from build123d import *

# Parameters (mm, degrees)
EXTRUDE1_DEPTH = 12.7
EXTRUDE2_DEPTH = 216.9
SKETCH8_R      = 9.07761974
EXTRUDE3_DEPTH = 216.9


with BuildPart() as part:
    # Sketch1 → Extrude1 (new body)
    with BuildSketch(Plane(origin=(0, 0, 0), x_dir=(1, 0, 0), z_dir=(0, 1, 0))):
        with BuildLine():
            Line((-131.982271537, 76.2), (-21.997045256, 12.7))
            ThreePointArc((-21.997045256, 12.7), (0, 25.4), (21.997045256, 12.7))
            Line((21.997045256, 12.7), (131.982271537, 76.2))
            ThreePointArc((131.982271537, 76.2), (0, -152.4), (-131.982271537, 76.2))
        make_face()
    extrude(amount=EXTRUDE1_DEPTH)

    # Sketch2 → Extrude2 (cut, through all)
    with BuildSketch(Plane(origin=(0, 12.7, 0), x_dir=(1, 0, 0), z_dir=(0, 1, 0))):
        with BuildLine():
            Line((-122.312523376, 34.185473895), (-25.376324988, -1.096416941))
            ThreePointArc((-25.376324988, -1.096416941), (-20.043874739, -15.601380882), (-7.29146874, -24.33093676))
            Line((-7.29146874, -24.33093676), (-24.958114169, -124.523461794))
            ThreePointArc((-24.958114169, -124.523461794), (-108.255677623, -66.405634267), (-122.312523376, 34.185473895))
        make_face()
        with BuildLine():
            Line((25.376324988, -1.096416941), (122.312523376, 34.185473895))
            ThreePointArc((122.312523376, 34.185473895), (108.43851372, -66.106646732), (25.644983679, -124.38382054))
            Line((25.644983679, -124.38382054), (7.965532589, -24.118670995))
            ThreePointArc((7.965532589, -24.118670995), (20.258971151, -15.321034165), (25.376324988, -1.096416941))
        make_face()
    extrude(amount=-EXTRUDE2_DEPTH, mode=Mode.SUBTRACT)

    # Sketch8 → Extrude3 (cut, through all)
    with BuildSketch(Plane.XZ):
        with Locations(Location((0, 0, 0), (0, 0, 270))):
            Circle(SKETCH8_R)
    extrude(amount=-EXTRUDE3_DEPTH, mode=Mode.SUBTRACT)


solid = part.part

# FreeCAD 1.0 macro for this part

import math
import FreeCAD as App
import Part
import Sketcher
Q = App.Units.Quantity

doc = App.newDocument("Part")
body = doc.addObject("PartDesign::Body", "Body")

sketch1 = body.newObject("Sketcher::SketchObject", "Sketch")
sketch1.AttachmentSupport = (doc.getObject("XZ_Plane"), [""])
sketch1.MapMode = "FlatFace"
sketch1.addGeometry(Part.LineSegment(App.Vector(-22, -13, 0), App.Vector(-132, -76, 0)), False)
sketch1.addGeometry(Part.ArcOfCircle(Part.Circle(App.Vector(0, 0, 0), App.Vector(0, 0, 1), 152), math.radians(-30), math.radians(210)), False)
sketch1.addGeometry(Part.LineSegment(App.Vector(132, -76, 0), App.Vector(22, -13, 0)), False)
sketch1.addGeometry(Part.ArcOfCircle(Part.Circle(App.Vector(0, 0, 0), App.Vector(0, 0, 1), 25), math.radians(-150), math.radians(-30)), False)
sketch1.addConstraint(Sketcher.Constraint("Coincident", 0, 2, 1, 2))
sketch1.addConstraint(Sketcher.Constraint("Coincident", 1, 1, 2, 1))
sketch1.addConstraint(Sketcher.Constraint("Coincident", 2, 2, 3, 2))
sketch1.addConstraint(Sketcher.Constraint("Coincident", 3, 1, 0, 1))
sketch1.addConstraint(Sketcher.Constraint("Coincident", 1, 3, -1, 1))
sketch1.addConstraint(Sketcher.Constraint("Coincident", 3, 3, -1, 1))
sketch1.addConstraint(Sketcher.Constraint("Horizontal", 0, 2, 1, 1))
sketch1.addConstraint(Sketcher.Constraint("Horizontal", 2, 2, 3, 1))
sketch1.addConstraint(Sketcher.Constraint("Radius", 1, Q("6 in")))
sketch1.addConstraint(Sketcher.Constraint("Radius", 3, Q("1 in")))
sketch1.addConstraint(Sketcher.Constraint("DistanceY", 0, 2, -1, 1, Q("3 in")))
sketch1.addConstraint(Sketcher.Constraint("Angle", 0, Q("-150 deg")))
pad1 = body.newObject("PartDesign::Pad", "Pad")
pad1.Profile = sketch1
pad1.Length = Q("0.5 in")
pad1.Reversed = True

sketch2 = body.newObject("Sketcher::SketchObject", "Sketch001")
sketch2.AttachmentSupport = (doc.getObject("XZ_Plane"), [""])
sketch2.MapMode = "FlatFace"
sketch2.AttachmentOffset = App.Placement(App.Vector(0, 0, -0.5 * 25.4), App.Rotation())
sketch2.addGeometry(Part.LineSegment(App.Vector(-25, 1, 0), App.Vector(-122, -34, 0)), False)
sketch2.addGeometry(Part.ArcOfCircle(Part.Circle(App.Vector(0, 0, 0), App.Vector(0, 0, 1), 127), math.radians(101), math.radians(196)), False)
sketch2.addGeometry(Part.LineSegment(App.Vector(-25, 125, 0), App.Vector(-7, 24, 0)), False)
sketch2.addGeometry(Part.ArcOfCircle(Part.Circle(App.Vector(0, 0, 0), App.Vector(0, 0, 1), 25), math.radians(107), math.radians(178)), False)
sketch2.addGeometry(Part.LineSegment(App.Vector(122, -34, 0), App.Vector(25, 1, 0)), False)
sketch2.addGeometry(Part.ArcOfCircle(Part.Circle(App.Vector(0, 0, 0), App.Vector(0, 0, 1), 25), math.radians(2), math.radians(72)), False)
sketch2.addGeometry(Part.LineSegment(App.Vector(8, 24, 0), App.Vector(26, 124, 0)), False)
sketch2.addGeometry(Part.ArcOfCircle(Part.Circle(App.Vector(0, 0, 0), App.Vector(0, 0, 1), 127), math.radians(-16), math.radians(78)), False)
sketch2.addConstraint(Sketcher.Constraint("Coincident", 0, 2, 1, 2))
sketch2.addConstraint(Sketcher.Constraint("Coincident", 1, 1, 2, 1))
sketch2.addConstraint(Sketcher.Constraint("Coincident", 2, 2, 3, 1))
sketch2.addConstraint(Sketcher.Constraint("Coincident", 3, 2, 0, 1))
sketch2.addConstraint(Sketcher.Constraint("Coincident", 4, 2, 5, 1))
sketch2.addConstraint(Sketcher.Constraint("Coincident", 5, 2, 6, 1))
sketch2.addConstraint(Sketcher.Constraint("Coincident", 6, 2, 7, 2))
sketch2.addConstraint(Sketcher.Constraint("Coincident", 7, 1, 4, 1))
sketch2.addConstraint(Sketcher.Constraint("Coincident", 1, 3, -1, 1))
sketch2.addConstraint(Sketcher.Constraint("Coincident", 3, 3, -1, 1))
sketch2.addConstraint(Sketcher.Constraint("Coincident", 5, 3, -1, 1))
sketch2.addConstraint(Sketcher.Constraint("Coincident", 7, 3, -1, 1))
sketch2.addConstraint(Sketcher.Constraint("Equal", 3, 5))
sketch2.addConstraint(Sketcher.Constraint("Equal", 1, 7))
sketch2.addConstraint(Sketcher.Constraint("Horizontal", 3, 2, 4, 2))
sketch2.addConstraint(Sketcher.Constraint("Horizontal", 0, 2, 7, 1))
sketch2.addConstraint(Sketcher.Constraint("Radius", 1, Q("5 in")))
sketch2.addConstraint(Sketcher.Constraint("Radius", 3, Q("1 in")))
sketch2.addConstraint(Sketcher.Constraint("Angle", 0, Q("-160 deg")))
sketch2.addConstraint(Sketcher.Constraint("Angle", 2, Q("-80 deg")))
sketch2.addConstraint(Sketcher.Constraint("Angle", 6, Q("80 deg")))
sketch2.addConstraint(Sketcher.Constraint("Distance", 6, Q("101.811901 mm")))
sketch2.addConstraint(Sketcher.Constraint("DistanceX", 2, 2, 5, 2, Q("15.257001 mm")))
sketch2.addConstraint(Sketcher.Constraint("DistanceX", 4, 2, 7, 1, Q("96.936198 mm")))
pocket1 = body.newObject("PartDesign::Pocket", "Pocket")
pocket1.Profile = sketch2
pocket1.Type = "ThroughAll"
pocket1.Reversed = True

sketch3 = body.newObject("Sketcher::SketchObject", "Sketch002")
sketch3.AttachmentSupport = (doc.getObject("XZ_Plane"), [""])
sketch3.MapMode = "FlatFace"
sketch3.addGeometry(Part.Circle(App.Vector(0, 0, 0), App.Vector(0, 0, 1), 9), False)
sketch3.addConstraint(Sketcher.Constraint("Coincident", 0, 3, -1, 1))
sketch3.addConstraint(Sketcher.Constraint("Diameter", 0, Q("18.155239 mm")))
pocket2 = body.newObject("PartDesign::Pocket", "Pocket001")
pocket2.Profile = sketch3
pocket2.Type = "ThroughAll"

doc.recompute()
